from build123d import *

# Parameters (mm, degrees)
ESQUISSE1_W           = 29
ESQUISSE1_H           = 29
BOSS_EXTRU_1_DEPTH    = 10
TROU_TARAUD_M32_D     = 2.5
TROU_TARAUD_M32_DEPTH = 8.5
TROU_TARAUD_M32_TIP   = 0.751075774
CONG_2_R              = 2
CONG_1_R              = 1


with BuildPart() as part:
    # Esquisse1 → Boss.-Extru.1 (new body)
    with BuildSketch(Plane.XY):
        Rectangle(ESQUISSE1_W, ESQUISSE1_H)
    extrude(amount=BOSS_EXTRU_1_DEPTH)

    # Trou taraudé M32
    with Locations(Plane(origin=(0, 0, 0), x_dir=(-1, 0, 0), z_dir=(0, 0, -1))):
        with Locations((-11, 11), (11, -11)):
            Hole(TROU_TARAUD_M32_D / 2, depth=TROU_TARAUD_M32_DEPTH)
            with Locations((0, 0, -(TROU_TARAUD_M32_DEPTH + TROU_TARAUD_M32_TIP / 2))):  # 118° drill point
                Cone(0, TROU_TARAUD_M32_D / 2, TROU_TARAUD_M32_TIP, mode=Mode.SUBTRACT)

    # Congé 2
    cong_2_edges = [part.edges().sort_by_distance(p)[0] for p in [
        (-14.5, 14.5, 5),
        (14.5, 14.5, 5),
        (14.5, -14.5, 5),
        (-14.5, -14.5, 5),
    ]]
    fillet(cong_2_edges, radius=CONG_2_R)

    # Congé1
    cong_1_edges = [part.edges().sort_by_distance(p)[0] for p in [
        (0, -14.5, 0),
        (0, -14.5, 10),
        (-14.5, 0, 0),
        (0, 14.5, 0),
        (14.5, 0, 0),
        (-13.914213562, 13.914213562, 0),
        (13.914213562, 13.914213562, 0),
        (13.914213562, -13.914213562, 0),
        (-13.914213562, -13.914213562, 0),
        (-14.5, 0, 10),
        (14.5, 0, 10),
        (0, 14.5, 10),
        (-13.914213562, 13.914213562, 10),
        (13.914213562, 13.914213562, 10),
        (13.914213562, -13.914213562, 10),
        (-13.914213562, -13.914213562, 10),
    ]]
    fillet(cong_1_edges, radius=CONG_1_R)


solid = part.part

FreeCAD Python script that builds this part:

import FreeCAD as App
import Part
import Sketcher


def edges_at(feature, points):
    """Names of the edges that pass closest to the given points."""
    edges = feature.Shape.Edges
    near = lambda p: min(range(len(edges)), key=lambda i: edges[i].distToShape(Part.Vertex(*p))[0])
    return sorted({f"Edge{near(p) + 1}" for p in points})


def add_polygon(sketch, points):
    """Adds a closed chain of lines whose ends are joined by coincident constraints."""
    first, n = sketch.GeometryCount, len(points)
    for a, b in zip(points, points[1:] + points[:1]):
        sketch.addGeometry(Part.LineSegment(App.Vector(*a, 0), App.Vector(*b, 0)), False)
    for i in range(n):
        sketch.addConstraint(Sketcher.Constraint("Coincident", first + i, 2, first + (i + 1) % n, 1))

doc = App.newDocument("Part")
body = doc.addObject("PartDesign::Body", "Body")

# Sketch on XY plane
sketch1 = doc.addObject("Sketcher::SketchObject", "Sketch")
body.addObject(sketch1)
sketch1.AttachmentSupport = (doc.XY_Plane, [""])
sketch1.MapMode = "FlatFace"
add_polygon(sketch1, [(-14.5, 14.5), (-14.5, -14.5), (14.5, -14.5), (14.5, 14.5)])  # lines 0-3
sketch1.addConstraint(Sketcher.Constraint("Vertical", 0))
sketch1.addConstraint(Sketcher.Constraint("Horizontal", 1))
sketch1.addConstraint(Sketcher.Constraint("Vertical", 2))
sketch1.addConstraint(Sketcher.Constraint("Horizontal", 3))
sketch1.addConstraint(Sketcher.Constraint("Symmetric", 0, 2, 2, 2, -1, 1))
sketch1.addConstraint(Sketcher.Constraint("Equal", 3, 0))
sketch1.addConstraint(Sketcher.Constraint("DistanceX", 1, 1, 1, 2, 29.0))
pad1 = doc.addObject("PartDesign::Pad", "Pad")
body.addObject(pad1)
pad1.Profile = sketch1
pad1.Length = 10

# Sketch on XY plane
sketch2 = doc.addObject("Sketcher::SketchObject", "Sketch001")
body.addObject(sketch2)
sketch2.AttachmentSupport = (doc.XY_Plane, [""])
sketch2.MapMode = "FlatFace"
sketch2.addGeometry(Part.Circle(App.Vector(11, 11, 0), App.Vector(0, 0, 1), 1.25), False)
sketch2.addGeometry(Part.Circle(App.Vector(-11, -11, 0), App.Vector(0, 0, 1), 1.25), False)
sketch2.addConstraint(Sketcher.Constraint("Equal", 0, 1))
sketch2.addConstraint(Sketcher.Constraint("Symmetric", 0, 3, 1, 3, -1, 1))
sketch2.addConstraint(Sketcher.Constraint("Diameter", 0, 2.5))
sketch2.addConstraint(Sketcher.Constraint("DistanceX", -1, 1, 0, 3, 11.0))
sketch2.addConstraint(Sketcher.Constraint("DistanceY", -1, 1, 0, 3, 11.0))
doc.recompute()
hole = doc.addObject("PartDesign::Hole", "Hole")
body.addObject(hole)
hole.Profile = sketch2
hole.ThreadType = "None"
hole.Diameter = 2.5
hole.DepthType = "Dimension"
hole.Depth = 8.5
hole.DrillPoint = "Angled"
hole.DrillPointAngle = 118
hole.Reversed = True
doc.recompute()

fillet = doc.addObject("PartDesign::Fillet", "Fillet")
body.addObject(fillet)
fillet.Base = (hole, edges_at(hole, [
    (-14.5, 14.5, 5),
    (14.5, 14.5, 5),
    (14.5, -14.5, 5),
    (-14.5, -14.5, 5),
]))
fillet.Radius = 2
doc.recompute()

fillet2 = doc.addObject("PartDesign::Fillet", "Fillet001")
body.addObject(fillet2)
fillet2.Base = (fillet, edges_at(fillet, [
    (0, -14.5, 0),
    (0, -14.5, 10),
    (-14.5, 0, 0),
    (0, 14.5, 0),
    (14.5, 0, 0),
    (-13.914, 13.914, 0),
    (13.914, 13.914, 0),
    (13.914, -13.914, 0),
    (-13.914, -13.914, 0),
    (-14.5, 0, 10),
    (14.5, 0, 10),
    (0, 14.5, 10),
    (-13.914, 13.914, 10),
    (13.914, 13.914, 10),
    (13.914, -13.914, 10),
    (-13.914, -13.914, 10),
]))
fillet2.Radius = 1

doc.recompute()
